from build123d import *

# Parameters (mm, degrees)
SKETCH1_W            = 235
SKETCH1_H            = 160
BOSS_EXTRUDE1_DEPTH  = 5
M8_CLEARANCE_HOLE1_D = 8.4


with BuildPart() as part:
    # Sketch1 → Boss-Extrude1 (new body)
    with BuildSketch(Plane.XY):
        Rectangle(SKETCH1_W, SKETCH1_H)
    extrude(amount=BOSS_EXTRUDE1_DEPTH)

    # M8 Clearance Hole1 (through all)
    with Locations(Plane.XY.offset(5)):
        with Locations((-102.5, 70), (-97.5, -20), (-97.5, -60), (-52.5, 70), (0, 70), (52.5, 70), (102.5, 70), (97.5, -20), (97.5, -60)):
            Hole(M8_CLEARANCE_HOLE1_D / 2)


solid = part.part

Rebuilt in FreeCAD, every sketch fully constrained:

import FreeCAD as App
import Part
import Sketcher
from FreeCAD import Vector

doc = App.newDocument("Part")
body = doc.addObject("PartDesign::Body", "Body")

# Sketch on XY plane
sketch1 = doc.addObject("Sketcher::SketchObject", "Sketch")
body.addObject(sketch1)
sketch1.AttachmentSupport = (doc.XY_Plane, [""])
sketch1.MapMode = "FlatFace"
sketch1.addGeometry([
    Part.LineSegment(Vector(-118, 80, 0), Vector(-118, -80, 0)),
    Part.LineSegment(Vector(-118, -80, 0), Vector(118, -80, 0)),
    Part.LineSegment(Vector(118, -80, 0), Vector(118, 80, 0)),
    Part.LineSegment(Vector(118, 80, 0), Vector(-118, 80, 0)),
], False)
sketch1.addConstraint([
    Sketcher.Constraint("Coincident", 0, 2, 1, 1),
    Sketcher.Constraint("Coincident", 1, 2, 2, 1),
    Sketcher.Constraint("Coincident", 2, 2, 3, 1),
    Sketcher.Constraint("Coincident", 3, 2, 0, 1),
    Sketcher.Constraint("Vertical", 0),
    Sketcher.Constraint("Horizontal", 1),
    Sketcher.Constraint("Vertical", 2),
    Sketcher.Constraint("Horizontal", 3),
    Sketcher.Constraint("Symmetric", 0, 2, 2, 2, -1, 1),
    Sketcher.Constraint("DistanceX", 1, 1, 1, 2, 235.0),
    Sketcher.Constraint("DistanceY", 0, 2, 0, 1, 160.0),
])
pad1 = doc.addObject("PartDesign::Pad", "Pad")
body.addObject(pad1)
pad1.Profile = sketch1
pad1.Length = 5

# Sketch on XY plane
sketch2 = doc.addObject("Sketcher::SketchObject", "Sketch001")
body.addObject(sketch2)
sketch2.AttachmentSupport = (doc.XY_Plane, [""])
sketch2.MapMode = "FlatFace"
sketch2.AttachmentOffset = App.Placement(Vector(0, 0, 5), App.Rotation())
sketch2.addGeometry([
    Part.Circle(Vector(-102.5, 70, 0), Vector(0, 0, 1), 4.2),  # 0
    Part.Circle(Vector(-97.5, -20, 0), Vector(0, 0, 1), 4.2),  # 1
    Part.Circle(Vector(-97.5, -60, 0), Vector(0, 0, 1), 4.2),  # 2
    Part.Circle(Vector(-52.5, 70, 0), Vector(0, 0, 1), 4.2),  # 3
    Part.Circle(Vector(0, 70, 0), Vector(0, 0, 1), 4.2),  # 4
    Part.Circle(Vector(52.5, 70, 0), Vector(0, 0, 1), 4.2),  # 5
    Part.Circle(Vector(102.5, 70, 0), Vector(0, 0, 1), 4.2),  # 6
    Part.Circle(Vector(97.5, -20, 0), Vector(0, 0, 1), 4.2),  # 7
    Part.Circle(Vector(97.5, -60, 0), Vector(0, 0, 1), 4.2),  # 8
], False)
sketch2.addConstraint([
    Sketcher.Constraint("Equal", 0, 1),
    Sketcher.Constraint("Equal", 1, 2),
    Sketcher.Constraint("Equal", 2, 3),
    Sketcher.Constraint("Equal", 3, 4),
    Sketcher.Constraint("Equal", 4, 5),
    Sketcher.Constraint("Equal", 5, 6),
    Sketcher.Constraint("Equal", 6, 7),
    Sketcher.Constraint("Equal", 7, 8),
    Sketcher.Constraint("Symmetric", 3, 3, 5, 3, -2),
    Sketcher.Constraint("Symmetric", 0, 3, 6, 3, -2),
    Sketcher.Constraint("Symmetric", 1, 3, 7, 3, -2),
    Sketcher.Constraint("Symmetric", 2, 3, 8, 3, -2),
    Sketcher.Constraint("PointOnObject", 4, 3, -2),
    Sketcher.Constraint("Horizontal", 0, 3, 3, 3),
    Sketcher.Constraint("Horizontal", 3, 3, 4, 3),
    Sketcher.Constraint("Vertical", 1, 3, 2, 3),
    Sketcher.Constraint("Diameter", 0, 8.4),
    Sketcher.Constraint("DistanceY", -1, 1, 0, 3, 70.0),
    Sketcher.Constraint("DistanceY", 1, 3, -1, 1, 20.0),
    Sketcher.Constraint("DistanceY", 2, 3, -1, 1, 60.0),
    Sketcher.Constraint("DistanceX", 0, 3, 1, 3, 5.0),
    Sketcher.Constraint("DistanceX", 0, 3, 3, 3, 50.0),
    Sketcher.Constraint("DistanceX", 3, 3, 5, 3, 105.0),
])
doc.recompute()
hole = doc.addObject("PartDesign::Hole", "Hole")
body.addObject(hole)
hole.Profile = sketch2
hole.ThreadType = "None"
hole.Diameter = 8.4
hole.DepthType = "ThroughAll"

doc.recompute()
